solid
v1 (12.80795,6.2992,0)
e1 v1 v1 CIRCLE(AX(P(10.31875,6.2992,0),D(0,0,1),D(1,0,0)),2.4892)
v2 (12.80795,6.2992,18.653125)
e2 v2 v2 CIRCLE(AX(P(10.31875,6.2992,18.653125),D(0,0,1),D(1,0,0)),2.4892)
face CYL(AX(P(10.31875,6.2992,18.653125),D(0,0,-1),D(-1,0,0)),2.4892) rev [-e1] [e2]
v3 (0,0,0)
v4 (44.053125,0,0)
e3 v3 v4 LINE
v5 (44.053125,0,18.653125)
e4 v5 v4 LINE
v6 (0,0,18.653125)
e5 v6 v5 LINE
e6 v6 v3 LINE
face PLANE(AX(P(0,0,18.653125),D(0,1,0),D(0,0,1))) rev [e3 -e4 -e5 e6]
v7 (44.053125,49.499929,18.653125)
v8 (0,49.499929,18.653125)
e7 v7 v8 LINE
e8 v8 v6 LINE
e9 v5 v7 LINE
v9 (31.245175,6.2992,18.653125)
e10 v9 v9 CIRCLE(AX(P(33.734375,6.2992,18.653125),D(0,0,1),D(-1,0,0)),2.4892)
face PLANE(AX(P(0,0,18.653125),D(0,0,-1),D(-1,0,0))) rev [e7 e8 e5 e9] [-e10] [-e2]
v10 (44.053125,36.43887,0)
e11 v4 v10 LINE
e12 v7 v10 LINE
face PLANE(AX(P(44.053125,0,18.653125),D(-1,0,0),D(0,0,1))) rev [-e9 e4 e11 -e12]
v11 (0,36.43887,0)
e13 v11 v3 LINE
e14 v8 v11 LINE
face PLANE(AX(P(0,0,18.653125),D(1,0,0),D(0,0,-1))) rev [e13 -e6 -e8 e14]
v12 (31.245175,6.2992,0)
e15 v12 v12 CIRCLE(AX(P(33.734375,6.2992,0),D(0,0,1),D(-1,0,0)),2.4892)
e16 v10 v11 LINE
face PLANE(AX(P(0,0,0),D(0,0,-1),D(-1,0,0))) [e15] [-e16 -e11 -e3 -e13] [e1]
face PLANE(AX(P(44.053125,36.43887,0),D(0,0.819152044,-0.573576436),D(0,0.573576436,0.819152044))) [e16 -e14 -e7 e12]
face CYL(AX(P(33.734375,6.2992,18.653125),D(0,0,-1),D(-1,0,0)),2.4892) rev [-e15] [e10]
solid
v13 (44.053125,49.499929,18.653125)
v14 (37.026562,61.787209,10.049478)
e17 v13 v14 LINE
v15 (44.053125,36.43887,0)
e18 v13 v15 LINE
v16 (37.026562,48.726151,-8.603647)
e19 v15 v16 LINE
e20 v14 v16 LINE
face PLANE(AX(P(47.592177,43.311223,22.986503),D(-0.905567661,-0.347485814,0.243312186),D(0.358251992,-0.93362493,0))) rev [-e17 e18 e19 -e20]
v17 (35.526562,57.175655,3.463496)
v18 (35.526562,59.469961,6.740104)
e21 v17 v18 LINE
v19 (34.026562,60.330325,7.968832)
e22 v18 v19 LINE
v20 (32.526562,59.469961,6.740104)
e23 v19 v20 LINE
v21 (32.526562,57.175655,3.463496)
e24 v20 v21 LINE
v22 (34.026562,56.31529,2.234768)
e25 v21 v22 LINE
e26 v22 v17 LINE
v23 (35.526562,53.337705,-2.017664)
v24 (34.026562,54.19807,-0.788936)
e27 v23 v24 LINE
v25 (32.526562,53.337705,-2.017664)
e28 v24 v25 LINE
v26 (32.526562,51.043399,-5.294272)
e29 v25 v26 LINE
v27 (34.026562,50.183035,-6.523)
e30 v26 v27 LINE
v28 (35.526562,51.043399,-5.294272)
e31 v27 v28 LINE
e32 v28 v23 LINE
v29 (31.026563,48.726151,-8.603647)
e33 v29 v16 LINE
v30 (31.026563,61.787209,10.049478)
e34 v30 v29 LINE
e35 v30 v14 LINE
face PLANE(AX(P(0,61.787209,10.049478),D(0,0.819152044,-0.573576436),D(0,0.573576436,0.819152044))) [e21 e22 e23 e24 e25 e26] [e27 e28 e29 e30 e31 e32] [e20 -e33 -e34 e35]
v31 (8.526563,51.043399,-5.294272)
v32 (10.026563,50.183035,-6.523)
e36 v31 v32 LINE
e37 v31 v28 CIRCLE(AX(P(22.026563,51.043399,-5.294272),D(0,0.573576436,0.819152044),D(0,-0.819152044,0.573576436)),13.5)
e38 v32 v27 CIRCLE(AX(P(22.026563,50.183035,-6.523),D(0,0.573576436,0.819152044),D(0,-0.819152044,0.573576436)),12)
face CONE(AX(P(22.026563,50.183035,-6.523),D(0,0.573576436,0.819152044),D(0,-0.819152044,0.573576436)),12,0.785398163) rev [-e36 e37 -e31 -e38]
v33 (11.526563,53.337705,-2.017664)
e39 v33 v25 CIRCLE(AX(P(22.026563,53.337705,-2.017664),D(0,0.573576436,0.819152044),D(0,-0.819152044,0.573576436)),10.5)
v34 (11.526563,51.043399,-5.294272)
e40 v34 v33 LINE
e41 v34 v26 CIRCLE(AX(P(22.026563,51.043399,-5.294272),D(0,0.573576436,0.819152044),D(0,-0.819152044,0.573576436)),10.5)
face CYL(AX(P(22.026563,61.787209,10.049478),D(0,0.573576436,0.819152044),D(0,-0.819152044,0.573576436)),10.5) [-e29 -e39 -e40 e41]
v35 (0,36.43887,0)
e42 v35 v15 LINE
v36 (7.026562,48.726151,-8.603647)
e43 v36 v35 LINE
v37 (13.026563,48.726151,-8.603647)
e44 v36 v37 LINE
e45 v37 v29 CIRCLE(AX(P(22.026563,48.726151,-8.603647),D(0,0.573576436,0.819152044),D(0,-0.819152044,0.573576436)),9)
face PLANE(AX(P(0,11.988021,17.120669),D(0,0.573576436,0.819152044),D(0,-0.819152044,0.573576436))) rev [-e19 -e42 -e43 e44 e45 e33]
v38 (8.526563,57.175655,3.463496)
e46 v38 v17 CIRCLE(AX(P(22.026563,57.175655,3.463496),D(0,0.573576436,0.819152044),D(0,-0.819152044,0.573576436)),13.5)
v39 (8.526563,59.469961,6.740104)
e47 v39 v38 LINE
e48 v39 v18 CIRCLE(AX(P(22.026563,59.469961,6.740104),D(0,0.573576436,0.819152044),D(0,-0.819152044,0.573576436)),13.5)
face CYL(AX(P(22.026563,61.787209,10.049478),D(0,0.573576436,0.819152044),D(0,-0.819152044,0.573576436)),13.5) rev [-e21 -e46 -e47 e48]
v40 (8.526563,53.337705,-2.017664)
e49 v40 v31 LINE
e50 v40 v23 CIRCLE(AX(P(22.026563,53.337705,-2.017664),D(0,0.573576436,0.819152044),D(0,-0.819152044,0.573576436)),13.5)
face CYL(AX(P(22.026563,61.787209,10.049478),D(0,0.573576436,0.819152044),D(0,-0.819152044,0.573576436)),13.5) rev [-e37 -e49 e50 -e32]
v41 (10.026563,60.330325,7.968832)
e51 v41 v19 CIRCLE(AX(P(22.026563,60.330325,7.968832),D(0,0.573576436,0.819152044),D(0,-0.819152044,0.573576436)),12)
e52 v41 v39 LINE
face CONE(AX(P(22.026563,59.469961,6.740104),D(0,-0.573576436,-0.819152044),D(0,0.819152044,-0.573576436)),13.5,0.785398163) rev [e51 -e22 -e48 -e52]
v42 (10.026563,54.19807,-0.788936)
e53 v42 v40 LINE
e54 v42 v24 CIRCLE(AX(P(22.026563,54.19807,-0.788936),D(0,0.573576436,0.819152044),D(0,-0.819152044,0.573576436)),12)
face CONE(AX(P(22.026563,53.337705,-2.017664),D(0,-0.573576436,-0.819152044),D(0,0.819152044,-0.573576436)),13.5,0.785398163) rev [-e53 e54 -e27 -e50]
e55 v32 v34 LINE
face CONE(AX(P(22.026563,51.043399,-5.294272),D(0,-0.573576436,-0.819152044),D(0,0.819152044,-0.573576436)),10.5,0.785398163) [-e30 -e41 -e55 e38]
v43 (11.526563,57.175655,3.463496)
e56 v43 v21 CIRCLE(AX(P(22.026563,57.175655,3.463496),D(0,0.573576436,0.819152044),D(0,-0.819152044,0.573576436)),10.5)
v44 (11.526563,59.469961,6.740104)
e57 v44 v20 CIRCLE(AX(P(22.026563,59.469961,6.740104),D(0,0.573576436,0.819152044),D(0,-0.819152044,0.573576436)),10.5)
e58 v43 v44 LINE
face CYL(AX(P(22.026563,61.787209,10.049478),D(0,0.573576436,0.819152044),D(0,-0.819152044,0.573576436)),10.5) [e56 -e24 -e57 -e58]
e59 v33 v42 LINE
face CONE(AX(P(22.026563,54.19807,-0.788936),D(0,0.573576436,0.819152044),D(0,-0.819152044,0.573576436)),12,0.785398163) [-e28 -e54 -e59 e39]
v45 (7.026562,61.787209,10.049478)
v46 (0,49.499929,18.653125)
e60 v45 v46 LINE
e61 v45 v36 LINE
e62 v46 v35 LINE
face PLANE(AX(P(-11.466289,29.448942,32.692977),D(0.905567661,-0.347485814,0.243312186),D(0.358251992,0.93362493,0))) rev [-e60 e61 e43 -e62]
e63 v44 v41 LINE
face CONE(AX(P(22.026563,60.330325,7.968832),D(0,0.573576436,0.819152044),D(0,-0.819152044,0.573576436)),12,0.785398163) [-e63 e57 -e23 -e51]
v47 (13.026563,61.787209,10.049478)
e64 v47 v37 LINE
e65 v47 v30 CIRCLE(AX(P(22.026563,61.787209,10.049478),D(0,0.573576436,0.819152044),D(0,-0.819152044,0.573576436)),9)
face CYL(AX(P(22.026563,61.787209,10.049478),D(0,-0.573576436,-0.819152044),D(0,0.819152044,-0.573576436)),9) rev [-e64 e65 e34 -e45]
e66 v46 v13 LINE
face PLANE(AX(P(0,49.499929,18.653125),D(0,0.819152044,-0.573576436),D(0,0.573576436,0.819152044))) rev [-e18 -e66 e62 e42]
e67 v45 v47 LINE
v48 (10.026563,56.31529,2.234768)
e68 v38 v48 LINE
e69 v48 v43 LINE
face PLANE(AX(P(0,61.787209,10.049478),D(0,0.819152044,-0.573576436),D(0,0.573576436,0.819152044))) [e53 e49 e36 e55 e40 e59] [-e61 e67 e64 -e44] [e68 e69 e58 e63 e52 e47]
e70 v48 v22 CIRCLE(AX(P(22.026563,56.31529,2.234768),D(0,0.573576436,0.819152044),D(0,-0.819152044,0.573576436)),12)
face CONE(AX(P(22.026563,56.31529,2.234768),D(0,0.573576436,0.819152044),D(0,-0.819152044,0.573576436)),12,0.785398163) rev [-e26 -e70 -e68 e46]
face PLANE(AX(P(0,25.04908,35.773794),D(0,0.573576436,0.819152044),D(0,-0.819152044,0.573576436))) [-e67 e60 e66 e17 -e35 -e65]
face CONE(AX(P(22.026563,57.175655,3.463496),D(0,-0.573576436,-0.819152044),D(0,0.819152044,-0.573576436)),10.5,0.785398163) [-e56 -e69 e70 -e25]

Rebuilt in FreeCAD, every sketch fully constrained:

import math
import FreeCAD as App
import Part
import Sketcher
from FreeCAD import Vector
Q = App.Units.Quantity


def add_polygon(sketch, points):
    """Adds a closed chain of lines whose ends are joined by coincident constraints."""
    first, n = sketch.GeometryCount, len(points)
    for a, b in zip(points, points[1:] + points[:1]):
        sketch.addGeometry(Part.LineSegment(App.Vector(*a, 0), App.Vector(*b, 0)), False)
    for i in range(n):
        sketch.addConstraint(Sketcher.Constraint("Coincident", first + i, 2, first + (i + 1) % n, 1))

doc = App.newDocument("Part")
body = doc.addObject("PartDesign::Body", "Body")

sketch1 = body.newObject("Sketcher::SketchObject", "Sketch")
sketch1.AttachmentSupport = (doc.getObject("XY_Plane"), [""])
sketch1.MapMode = "FlatFace"
add_polygon(sketch1, [(0, 36.43887), (0, 0), (44.053125, 0), (44.053125, 36.43887)])
sketch1.addGeometry(Part.Circle(Vector(10.31875, 6.2992, 0), Vector(0, 0, 1), 2.4892), False)
sketch1.addGeometry(Part.Circle(Vector(33.734375, 6.2992, 0), Vector(0, 0, 1), 2.4892), False)
sketch1.addConstraint([
    Sketcher.Constraint("Vertical", 0),
    Sketcher.Constraint("Horizontal", 1),
    Sketcher.Constraint("Vertical", 2),
    Sketcher.Constraint("Horizontal", 3),
    Sketcher.Constraint("Coincident", 0, 2, -1, 1),
    Sketcher.Constraint("Equal", 4, 5),
    Sketcher.Constraint("Horizontal", 4, 3, 5, 3),
    Sketcher.Constraint("Diameter", 4, 4.9784),
    Sketcher.Constraint("DistanceY", 0, 2, 0, 1, 36.43887),
    Sketcher.Constraint("DistanceY", -1, 1, 4, 3, 6.2992),
    Sketcher.Constraint("DistanceX", 1, 1, 1, 2, 44.053125),
    Sketcher.Constraint("DistanceX", -1, 1, 4, 3, 10.31875),
    Sketcher.Constraint("DistanceX", 5, 3, 1, 2, 10.31875),
])
pad1 = body.newObject("PartDesign::Pad", "Pad")
pad1.Profile = sketch1
pad1.Length = 18.653125

sketch2 = body.newObject("Sketcher::SketchObject", "Sketch001")
sketch2.AttachmentSupport = (doc.getObject("YZ_Plane"), [""])
sketch2.MapMode = "FlatFace"
add_polygon(sketch2, [(49.499929, 18.653125), (36.43887, 0), (36.43887, 18.653125)])
sketch2.addConstraint([
    Sketcher.Constraint("Vertical", 1),
    Sketcher.Constraint("Horizontal", 2),
    Sketcher.Constraint("PointOnObject", 0, 2, -1),
    Sketcher.Constraint("Angle", 0, Q("-125 deg")),
    Sketcher.Constraint("DistanceX", 2, 1, 2, 2, 13.061059),
    Sketcher.Constraint("DistanceX", -1, 1, 0, 2, 36.43887),
])
pad2 = body.newObject("PartDesign::Pad", "Pad001")
pad2.Profile = sketch2
pad2.Length = 44.053125
body2 = doc.addObject("PartDesign::Body", "Body001")

sketch3 = body2.newObject("Sketcher::SketchObject", "Sketch002")
sketch3.Placement = App.Placement(Vector(0, 11.988021, 17.120669), App.Rotation(Vector(1, 0, 0), Vector(0, 0.819152044, -0.573576436), Vector(0, 0.573576436, 0.819152044), "ZXY"))
sketch3.addGeometry([
    Part.LineSegment(Vector(37.026562, 44.848975, 0), Vector(31.026563, 44.848975, 0)),
    Part.ArcOfCircle(Part.Circle(Vector(22.026563, 44.848975, 0), Vector(0, 0, 1), 9), math.radians(-90), math.radians(0)),
    Part.ArcOfCircle(Part.Circle(Vector(22.026562, 44.848975, 0), Vector(0, 0, 1), 9), math.radians(180), math.radians(270)),
    Part.LineSegment(Vector(13.026563, 44.848975, 0), Vector(7.026562, 44.848975, 0)),
    Part.LineSegment(Vector(7.026562, 44.848975, 0), Vector(0, 29.848975, 0)),
    Part.LineSegment(Vector(0, 29.848975, 0), Vector(44.053125, 29.848975, 0)),
    Part.LineSegment(Vector(44.053125, 29.848975, 0), Vector(37.026562, 44.848975, 0)),
], False)
sketch3.addConstraint([
    Sketcher.Constraint("Coincident", 0, 2, 1, 2),
    Sketcher.Constraint("Tangent", 1, 1, 2, 2),
    Sketcher.Constraint("Coincident", 2, 1, 3, 1),
    Sketcher.Constraint("Coincident", 3, 2, 4, 1),
    Sketcher.Constraint("Coincident", 4, 2, 5, 1),
    Sketcher.Constraint("Coincident", 5, 2, 6, 1),
    Sketcher.Constraint("Coincident", 6, 2, 0, 1),
    Sketcher.Constraint("Horizontal", 0),
    Sketcher.Constraint("Horizontal", 3),
    Sketcher.Constraint("Horizontal", 5),
    Sketcher.Constraint("Equal", 1, 2),
    Sketcher.Constraint("PointOnObject", 4, 2, -2),
    Sketcher.Constraint("Horizontal", 2, 3, 0, 2),
    Sketcher.Constraint("Horizontal", 0, 2, 2, 1),
    Sketcher.Constraint("Vertical", 2, 3, 1, 1),
    Sketcher.Constraint("Equal", 0, 3),
    Sketcher.Constraint("Equal", 4, 6),
    Sketcher.Constraint("Radius", 1, 9.0),
    Sketcher.Constraint("DistanceX", 0, 2, 0, 1, 6.0),
    Sketcher.Constraint("DistanceY", 4, 2, 3, 2, 15.0),
    Sketcher.Constraint("DistanceX", 5, 1, 5, 2, 44.053125),
    Sketcher.Constraint("DistanceY", -1, 1, 1, 3, 44.848975),
])
pad3 = body2.newObject("PartDesign::Pad", "Pad002")
pad3.Profile = sketch3
pad3.Length = 22.771261

sketch4 = body2.newObject("Sketcher::SketchObject", "Sketch003")
sketch4.Placement = App.Placement(Vector(0, 36.738129, -25.724315), App.Rotation(Vector(1, 0, 0), Vector(0, -0.573576436, -0.819152044), Vector(0, 0.819152044, -0.573576436), "ZXY"))
add_polygon(sketch4, [(8.526563, -24.940477), (8.526563, -28.940477), (10.026563, -30.440477), (11.526563, -28.940477), (11.526563, -24.940477), (10.026563, -23.440477)])
add_polygon(sketch4, [(8.526563, -39.631738), (10.026563, -41.131738), (11.526563, -39.631738), (11.526563, -35.631738), (10.026563, -34.131738), (8.526563, -35.631738)])
sketch4.addGeometry(Part.LineSegment(Vector(22.026563, -41.131738, 0), Vector(22.026563, -23.440477, 0)), True)
sketch4.addConstraint([
    Sketcher.Constraint("Vertical", 0),
    Sketcher.Constraint("Vertical", 3),
    Sketcher.Constraint("Vertical", 8),
    Sketcher.Constraint("Vertical", 11),
    Sketcher.Constraint("Vertical", 12),
    Sketcher.Constraint("Perpendicular", 1, 2),
    Sketcher.Constraint("Perpendicular", 2, 4),
    Sketcher.Constraint("Perpendicular", 4, 5),
    Sketcher.Constraint("Perpendicular", 5, 6),
    Sketcher.Constraint("Perpendicular", 6, 7),
    Sketcher.Constraint("Perpendicular", 7, 9),
    Sketcher.Constraint("Perpendicular", 9, 10),
    Sketcher.Constraint("Horizontal", 0, 2, 2, 2),
    Sketcher.Constraint("Horizontal", 3, 2, 5, 2),
    Sketcher.Constraint("Horizontal", 8, 2, 10, 2),
    Sketcher.Constraint("Horizontal", 7, 2, 11, 2),
    Sketcher.Constraint("Horizontal", 6, 2, 12, 1),
    Sketcher.Constraint("Horizontal", 4, 2, 12, 2),
    Sketcher.Constraint("Vertical", 1, 2, 4, 2),
    Sketcher.Constraint("Vertical", 4, 2, 6, 2),
    Sketcher.Constraint("Vertical", 3, 2, 7, 2),
    Sketcher.Constraint("Equal", 3, 8),
    Sketcher.Constraint("DistanceY", 0, 2, 0, 1, 4.0),
    Sketcher.Constraint("DistanceX", 0, 2, 2, 2, 3.0),
    Sketcher.Constraint("DistanceX", 6, 2, 12, 1, 12.0),
    Sketcher.Constraint("DistanceY", 12, 1, 12, 2, 17.691261),
    Sketcher.Constraint("DistanceY", 6, 2, -1, 1, 41.131738),
    Sketcher.Constraint("DistanceX", -1, 1, 0, 2, 8.526563),
])
groove = body2.newObject("PartDesign::Groove", "Groove")
groove.Profile = sketch4
groove.ReferenceAxis = (sketch4, ["Axis0"])
groove.Angle = 360

doc.recompute()
